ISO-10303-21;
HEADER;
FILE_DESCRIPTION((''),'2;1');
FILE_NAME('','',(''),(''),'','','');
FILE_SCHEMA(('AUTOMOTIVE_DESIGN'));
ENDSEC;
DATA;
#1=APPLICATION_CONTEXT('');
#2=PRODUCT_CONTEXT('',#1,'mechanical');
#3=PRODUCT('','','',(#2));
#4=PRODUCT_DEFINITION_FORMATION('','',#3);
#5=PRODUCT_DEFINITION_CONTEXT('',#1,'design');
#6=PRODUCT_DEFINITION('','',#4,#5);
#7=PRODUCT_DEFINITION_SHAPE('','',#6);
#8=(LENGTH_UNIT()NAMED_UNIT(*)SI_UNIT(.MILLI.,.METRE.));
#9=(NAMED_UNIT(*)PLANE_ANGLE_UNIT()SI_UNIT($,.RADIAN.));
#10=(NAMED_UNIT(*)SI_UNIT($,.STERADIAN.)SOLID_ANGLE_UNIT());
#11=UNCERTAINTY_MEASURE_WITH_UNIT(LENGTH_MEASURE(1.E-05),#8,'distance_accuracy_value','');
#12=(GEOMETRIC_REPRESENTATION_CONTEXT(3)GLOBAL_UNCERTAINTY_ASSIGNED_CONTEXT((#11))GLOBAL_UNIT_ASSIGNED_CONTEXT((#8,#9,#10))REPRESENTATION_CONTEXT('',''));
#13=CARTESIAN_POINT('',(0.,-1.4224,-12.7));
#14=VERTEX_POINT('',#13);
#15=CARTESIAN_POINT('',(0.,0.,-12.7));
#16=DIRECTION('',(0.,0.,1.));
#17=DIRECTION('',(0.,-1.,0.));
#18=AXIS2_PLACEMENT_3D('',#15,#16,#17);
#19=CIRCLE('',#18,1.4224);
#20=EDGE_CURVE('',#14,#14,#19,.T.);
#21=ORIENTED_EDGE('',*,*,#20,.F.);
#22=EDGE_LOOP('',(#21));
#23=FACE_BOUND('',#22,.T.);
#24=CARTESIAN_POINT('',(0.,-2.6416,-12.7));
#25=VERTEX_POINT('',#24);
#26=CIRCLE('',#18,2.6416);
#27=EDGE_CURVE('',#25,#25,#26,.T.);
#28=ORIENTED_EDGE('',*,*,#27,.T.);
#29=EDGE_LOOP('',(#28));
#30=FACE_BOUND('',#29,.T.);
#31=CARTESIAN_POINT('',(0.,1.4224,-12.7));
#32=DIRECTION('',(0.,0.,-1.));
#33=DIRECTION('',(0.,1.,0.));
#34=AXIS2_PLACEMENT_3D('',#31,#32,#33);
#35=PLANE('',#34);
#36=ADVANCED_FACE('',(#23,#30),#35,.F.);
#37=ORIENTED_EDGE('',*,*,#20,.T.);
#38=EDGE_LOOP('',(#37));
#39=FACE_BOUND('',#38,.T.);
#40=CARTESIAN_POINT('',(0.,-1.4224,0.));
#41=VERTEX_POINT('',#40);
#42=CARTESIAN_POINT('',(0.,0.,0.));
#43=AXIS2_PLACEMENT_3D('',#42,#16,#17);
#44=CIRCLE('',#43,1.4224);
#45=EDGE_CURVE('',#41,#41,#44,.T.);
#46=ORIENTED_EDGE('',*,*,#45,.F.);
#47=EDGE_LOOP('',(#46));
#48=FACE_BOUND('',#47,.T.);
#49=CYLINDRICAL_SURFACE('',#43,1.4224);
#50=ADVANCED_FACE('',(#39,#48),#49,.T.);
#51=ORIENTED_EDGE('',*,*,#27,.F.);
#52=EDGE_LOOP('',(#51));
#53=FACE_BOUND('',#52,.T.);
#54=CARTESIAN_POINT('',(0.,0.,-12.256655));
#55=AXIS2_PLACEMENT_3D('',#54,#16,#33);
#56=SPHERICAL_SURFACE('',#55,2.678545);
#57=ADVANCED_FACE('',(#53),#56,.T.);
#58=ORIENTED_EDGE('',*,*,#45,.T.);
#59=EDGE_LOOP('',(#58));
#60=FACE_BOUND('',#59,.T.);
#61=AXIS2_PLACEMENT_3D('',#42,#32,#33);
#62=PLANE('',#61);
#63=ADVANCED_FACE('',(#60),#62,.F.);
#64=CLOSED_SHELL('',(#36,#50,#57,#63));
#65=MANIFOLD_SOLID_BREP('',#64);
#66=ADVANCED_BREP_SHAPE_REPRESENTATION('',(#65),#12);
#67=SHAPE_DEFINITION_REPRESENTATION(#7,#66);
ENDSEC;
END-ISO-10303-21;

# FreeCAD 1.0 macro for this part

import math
import FreeCAD as App
import Part
import Sketcher

V = App.Vector
Q = App.Units.Quantity

doc = App.newDocument("Part")
body = doc.addObject("PartDesign::Body", "Body")

sketch1 = body.newObject("Sketcher::SketchObject", "Sketch")
sketch1.AttachmentSupport = (doc.getObject("YZ_Plane"), [""])
sketch1.MapMode = "FlatFace"
sketch1.addGeometry([
    Part.LineSegment(V(1.4, 0, 0), V(0, 0, 0)),
    Part.LineSegment(V(0, 0, 0), V(0, -14.9, 0)),
    Part.ArcOfCircle(Part.Circle(V(0, -12.3, 0), V(0, 0, 1), 2.7), math.radians(-90), math.radians(-10)),
    Part.LineSegment(V(2.6, -12.7, 0), V(1.4, -12.7, 0)),
    Part.LineSegment(V(1.4, -12.7, 0), V(1.4, 0, 0)),
], False)
sketch1.addConstraint([
    Sketcher.Constraint("Coincident", 0, 2, 1, 1),
    Sketcher.Constraint("Coincident", 1, 2, 2, 1),
    Sketcher.Constraint("Coincident", 2, 2, 3, 1),
    Sketcher.Constraint("Coincident", 3, 2, 4, 1),
    Sketcher.Constraint("Coincident", 4, 2, 0, 1),
    Sketcher.Constraint("Horizontal", 0),
    Sketcher.Constraint("Vertical", 1),
    Sketcher.Constraint("Horizontal", 3),
    Sketcher.Constraint("Vertical", 4),
    Sketcher.Constraint("Coincident", 0, 2, -1, 1),
    Sketcher.Constraint("PointOnObject", 2, 3, -2),
    Sketcher.Constraint("DistanceY", 4, 1, 4, 2, Q("0.5 in")),
    Sketcher.Constraint("DistanceX", 0, 2, 0, 1, Q("0.056 in")),
    Sketcher.Constraint("DistanceX", 3, 2, 3, 1, Q("0.048 in")),
    Sketcher.Constraint("DistanceY", 1, 2, 1, 1, Q("0.588 in")),
])
revolution = body.newObject("PartDesign::Revolution", "Revolution")
revolution.Profile = sketch1
revolution.ReferenceAxis = (sketch1, ["V_Axis"])
revolution.Angle = 360

doc.recompute()
